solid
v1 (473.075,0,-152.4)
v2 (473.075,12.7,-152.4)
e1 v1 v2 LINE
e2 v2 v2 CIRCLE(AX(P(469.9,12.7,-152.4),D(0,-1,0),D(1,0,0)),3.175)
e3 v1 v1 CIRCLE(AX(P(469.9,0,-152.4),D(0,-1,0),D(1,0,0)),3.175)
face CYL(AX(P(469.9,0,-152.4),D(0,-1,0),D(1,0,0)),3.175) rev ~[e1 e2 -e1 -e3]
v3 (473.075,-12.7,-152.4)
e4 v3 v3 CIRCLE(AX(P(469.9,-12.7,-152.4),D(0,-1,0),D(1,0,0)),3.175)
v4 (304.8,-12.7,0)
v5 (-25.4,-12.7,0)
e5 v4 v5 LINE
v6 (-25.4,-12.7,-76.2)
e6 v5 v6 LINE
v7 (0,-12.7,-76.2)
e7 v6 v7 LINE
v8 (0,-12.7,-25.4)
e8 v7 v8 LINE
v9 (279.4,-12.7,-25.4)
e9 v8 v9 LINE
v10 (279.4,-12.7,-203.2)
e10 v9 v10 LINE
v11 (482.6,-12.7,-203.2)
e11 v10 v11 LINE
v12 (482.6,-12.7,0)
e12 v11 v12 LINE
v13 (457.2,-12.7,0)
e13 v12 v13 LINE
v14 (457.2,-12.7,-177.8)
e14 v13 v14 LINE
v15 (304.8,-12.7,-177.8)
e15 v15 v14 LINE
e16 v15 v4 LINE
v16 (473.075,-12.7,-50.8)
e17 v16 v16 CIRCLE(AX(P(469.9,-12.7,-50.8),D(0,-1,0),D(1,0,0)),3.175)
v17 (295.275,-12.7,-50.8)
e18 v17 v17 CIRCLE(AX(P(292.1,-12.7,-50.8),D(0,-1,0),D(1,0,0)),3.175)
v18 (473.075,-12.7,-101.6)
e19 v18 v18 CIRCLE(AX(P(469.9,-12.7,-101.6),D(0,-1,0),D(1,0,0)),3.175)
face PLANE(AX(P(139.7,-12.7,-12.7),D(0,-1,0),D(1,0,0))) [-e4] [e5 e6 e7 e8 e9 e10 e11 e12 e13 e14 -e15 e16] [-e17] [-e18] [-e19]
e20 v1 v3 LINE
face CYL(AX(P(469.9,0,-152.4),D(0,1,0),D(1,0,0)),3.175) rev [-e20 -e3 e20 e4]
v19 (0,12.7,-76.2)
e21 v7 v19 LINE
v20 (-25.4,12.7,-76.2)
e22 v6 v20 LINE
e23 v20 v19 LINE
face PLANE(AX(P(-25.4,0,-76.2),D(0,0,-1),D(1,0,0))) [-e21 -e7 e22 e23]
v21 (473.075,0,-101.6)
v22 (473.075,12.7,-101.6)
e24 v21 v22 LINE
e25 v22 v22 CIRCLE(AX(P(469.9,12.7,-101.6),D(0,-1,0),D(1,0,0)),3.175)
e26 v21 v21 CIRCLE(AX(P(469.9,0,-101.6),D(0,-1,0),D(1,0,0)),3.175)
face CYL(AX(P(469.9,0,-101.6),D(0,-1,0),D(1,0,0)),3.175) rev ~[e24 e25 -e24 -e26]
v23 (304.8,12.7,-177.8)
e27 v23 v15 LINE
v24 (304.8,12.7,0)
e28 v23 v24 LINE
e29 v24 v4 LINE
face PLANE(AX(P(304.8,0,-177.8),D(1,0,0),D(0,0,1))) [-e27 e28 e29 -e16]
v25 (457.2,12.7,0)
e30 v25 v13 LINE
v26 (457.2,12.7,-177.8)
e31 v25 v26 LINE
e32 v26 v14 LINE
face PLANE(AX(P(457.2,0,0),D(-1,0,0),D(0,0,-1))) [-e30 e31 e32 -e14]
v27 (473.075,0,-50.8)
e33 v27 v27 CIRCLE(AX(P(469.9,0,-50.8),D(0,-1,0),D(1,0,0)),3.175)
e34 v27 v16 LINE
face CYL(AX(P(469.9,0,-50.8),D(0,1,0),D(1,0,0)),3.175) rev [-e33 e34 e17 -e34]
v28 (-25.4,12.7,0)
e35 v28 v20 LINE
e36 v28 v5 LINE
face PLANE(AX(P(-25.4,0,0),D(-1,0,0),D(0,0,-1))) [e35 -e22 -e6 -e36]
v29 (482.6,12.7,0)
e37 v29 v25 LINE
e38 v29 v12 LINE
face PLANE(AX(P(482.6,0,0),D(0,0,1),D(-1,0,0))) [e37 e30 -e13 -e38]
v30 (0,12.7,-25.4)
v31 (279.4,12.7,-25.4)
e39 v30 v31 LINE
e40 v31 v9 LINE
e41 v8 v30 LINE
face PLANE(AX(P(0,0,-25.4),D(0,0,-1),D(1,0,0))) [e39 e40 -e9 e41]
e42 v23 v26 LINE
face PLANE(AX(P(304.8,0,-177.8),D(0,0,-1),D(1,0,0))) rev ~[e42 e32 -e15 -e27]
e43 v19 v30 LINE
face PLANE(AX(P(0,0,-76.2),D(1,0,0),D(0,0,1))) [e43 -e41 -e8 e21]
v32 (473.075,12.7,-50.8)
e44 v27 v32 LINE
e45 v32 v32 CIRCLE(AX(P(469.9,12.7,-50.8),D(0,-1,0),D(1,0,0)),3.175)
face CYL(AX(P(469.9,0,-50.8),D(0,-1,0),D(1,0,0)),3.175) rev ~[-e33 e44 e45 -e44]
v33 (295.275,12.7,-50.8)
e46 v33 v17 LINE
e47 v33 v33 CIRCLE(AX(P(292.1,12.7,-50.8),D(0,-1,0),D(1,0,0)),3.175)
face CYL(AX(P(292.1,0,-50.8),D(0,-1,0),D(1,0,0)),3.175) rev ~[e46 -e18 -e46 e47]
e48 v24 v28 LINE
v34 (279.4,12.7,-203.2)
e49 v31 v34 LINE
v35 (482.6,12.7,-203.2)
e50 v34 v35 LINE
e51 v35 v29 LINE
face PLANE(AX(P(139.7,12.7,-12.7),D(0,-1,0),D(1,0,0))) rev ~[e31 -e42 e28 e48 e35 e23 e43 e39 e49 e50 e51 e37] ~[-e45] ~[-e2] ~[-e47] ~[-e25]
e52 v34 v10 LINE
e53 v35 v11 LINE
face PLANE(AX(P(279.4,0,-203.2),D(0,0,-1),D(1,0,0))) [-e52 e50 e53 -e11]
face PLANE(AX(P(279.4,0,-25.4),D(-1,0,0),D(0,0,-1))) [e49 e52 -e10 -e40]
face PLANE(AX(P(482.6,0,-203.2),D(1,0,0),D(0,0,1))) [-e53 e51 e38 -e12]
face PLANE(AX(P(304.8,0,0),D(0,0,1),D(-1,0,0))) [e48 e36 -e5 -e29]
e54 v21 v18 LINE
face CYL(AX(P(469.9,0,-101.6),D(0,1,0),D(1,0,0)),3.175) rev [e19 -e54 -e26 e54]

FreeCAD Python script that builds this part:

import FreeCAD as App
import Part
import Sketcher
from FreeCAD import Vector
Q = App.Units.Quantity

doc = App.newDocument("Part")
body = doc.addObject("PartDesign::Body", "Body")

# Sketch on XZ plane
sketch1 = body.newObject("Sketcher::SketchObject", "Sketch")
sketch1.AttachmentSupport = (doc.getObject("XZ_Plane"), [""])
sketch1.MapMode = "FlatFace"
sketch1.addGeometry(Part.LineSegment(Vector(0, -25, 0), Vector(279, -25, 0)), False)
sketch1.addGeometry(Part.LineSegment(Vector(279, -25, 0), Vector(279, -203, 0)), False)
sketch1.addGeometry(Part.LineSegment(Vector(279, -203, 0), Vector(483, -203, 0)), False)
sketch1.addGeometry(Part.LineSegment(Vector(483, -203, 0), Vector(483, 0, 0)), False)
sketch1.addGeometry(Part.LineSegment(Vector(483, 0, 0), Vector(457, 0, 0)), False)
sketch1.addGeometry(Part.LineSegment(Vector(457, 0, 0), Vector(457, -178, 0)), False)
sketch1.addGeometry(Part.LineSegment(Vector(457, -178, 0), Vector(305, -178, 0)), False)
sketch1.addGeometry(Part.LineSegment(Vector(305, -178, 0), Vector(305, 0, 0)), False)
sketch1.addGeometry(Part.LineSegment(Vector(305, 0, 0), Vector(-25, 0, 0)), False)
sketch1.addGeometry(Part.LineSegment(Vector(-25, 0, 0), Vector(-25, -76, 0)), False)
sketch1.addGeometry(Part.LineSegment(Vector(-25, -76, 0), Vector(0, -76, 0)), False)
sketch1.addGeometry(Part.LineSegment(Vector(0, -76, 0), Vector(0, -25, 0)), False)
sketch1.addConstraint(Sketcher.Constraint("Coincident", 0, 2, 1, 1))
sketch1.addConstraint(Sketcher.Constraint("Coincident", 1, 2, 2, 1))
sketch1.addConstraint(Sketcher.Constraint("Coincident", 2, 2, 3, 1))
sketch1.addConstraint(Sketcher.Constraint("Coincident", 3, 2, 4, 1))
sketch1.addConstraint(Sketcher.Constraint("Coincident", 4, 2, 5, 1))
sketch1.addConstraint(Sketcher.Constraint("Coincident", 5, 2, 6, 1))
sketch1.addConstraint(Sketcher.Constraint("Coincident", 6, 2, 7, 1))
sketch1.addConstraint(Sketcher.Constraint("Coincident", 7, 2, 8, 1))
sketch1.addConstraint(Sketcher.Constraint("Coincident", 8, 2, 9, 1))
sketch1.addConstraint(Sketcher.Constraint("Coincident", 9, 2, 10, 1))
sketch1.addConstraint(Sketcher.Constraint("Coincident", 10, 2, 11, 1))
sketch1.addConstraint(Sketcher.Constraint("Coincident", 11, 2, 0, 1))
sketch1.addConstraint(Sketcher.Constraint("Horizontal", 0))
sketch1.addConstraint(Sketcher.Constraint("Vertical", 1))
sketch1.addConstraint(Sketcher.Constraint("Horizontal", 2))
sketch1.addConstraint(Sketcher.Constraint("Vertical", 3))
sketch1.addConstraint(Sketcher.Constraint("Horizontal", 4))
sketch1.addConstraint(Sketcher.Constraint("Vertical", 5))
sketch1.addConstraint(Sketcher.Constraint("Horizontal", 6))
sketch1.addConstraint(Sketcher.Constraint("Vertical", 7))
sketch1.addConstraint(Sketcher.Constraint("Horizontal", 8))
sketch1.addConstraint(Sketcher.Constraint("Vertical", 9))
sketch1.addConstraint(Sketcher.Constraint("Horizontal", 10))
sketch1.addConstraint(Sketcher.Constraint("Vertical", 11))
sketch1.addConstraint(Sketcher.Constraint("PointOnObject", 3, 2, -1))
sketch1.addConstraint(Sketcher.Constraint("PointOnObject", 7, 2, -1))
sketch1.addConstraint(Sketcher.Constraint("PointOnObject", 10, 2, -2))
sketch1.addConstraint(Sketcher.Constraint("Equal", 4, 10))
sketch1.addConstraint(Sketcher.Constraint("Equal", 2, 3))
sketch1.addConstraint(Sketcher.Constraint("Equal", 1, 5))
sketch1.addConstraint(Sketcher.Constraint("DistanceX", 0, 1, 0, 2, Q("11 in")))
sketch1.addConstraint(Sketcher.Constraint("DistanceX", 2, 1, 2, 2, Q("8 in")))
sketch1.addConstraint(Sketcher.Constraint("DistanceX", 4, 2, 4, 1, Q("1 in")))
sketch1.addConstraint(Sketcher.Constraint("DistanceX", 6, 2, 6, 1, Q("6 in")))
sketch1.addConstraint(Sketcher.Constraint("DistanceY", 1, 2, 1, 1, Q("7 in")))
sketch1.addConstraint(Sketcher.Constraint("DistanceY", 9, 2, 9, 1, Q("3 in")))
pad1 = body.newObject("PartDesign::Pad", "Pad")
pad1.Profile = sketch1
pad1.Length = Q("1 in")
pad1.Midplane = True

# Sketch on XZ plane
sketch2 = body.newObject("Sketcher::SketchObject", "Sketch001")
sketch2.AttachmentSupport = (doc.getObject("XZ_Plane"), [""])
sketch2.MapMode = "FlatFace"
sketch2.addGeometry(Part.Circle(Vector(469.9, -101.6, 0), Vector(0, 0, 1), 3.2), False)
sketch2.addGeometry(Part.Circle(Vector(469.9, -50.8, 0), Vector(0, 0, 1), 3.2), False)
sketch2.addGeometry(Part.Circle(Vector(469.9, -152.4, 0), Vector(0, 0, 1), 3.2), False)
sketch2.addGeometry(Part.Circle(Vector(292.1, -50.8, 0), Vector(0, 0, 1), 3.2), False)
sketch2.addConstraint(Sketcher.Constraint("Equal", 0, 1))
sketch2.addConstraint(Sketcher.Constraint("Equal", 1, 2))
sketch2.addConstraint(Sketcher.Constraint("Equal", 2, 3))
sketch2.addConstraint(Sketcher.Constraint("Horizontal", 1, 3, 3, 3))
sketch2.addConstraint(Sketcher.Constraint("Vertical", 0, 3, 1, 3))
sketch2.addConstraint(Sketcher.Constraint("Vertical", 1, 3, 2, 3))
sketch2.addConstraint(Sketcher.Constraint("Diameter", 0, Q("0.25 in")))
sketch2.addConstraint(Sketcher.Constraint("DistanceY", 0, 3, -1, 1, Q("4 in")))
sketch2.addConstraint(Sketcher.Constraint("DistanceY", 1, 3, -1, 1, Q("2 in")))
sketch2.addConstraint(Sketcher.Constraint("DistanceY", 2, 3, -1, 1, Q("6 in")))
sketch2.addConstraint(Sketcher.Constraint("DistanceX", 3, 3, 1, 3, Q("7 in")))
sketch2.addConstraint(Sketcher.Constraint("DistanceX", -1, 1, 0, 3, Q("18.5 in")))
pocket1 = body.newObject("PartDesign::Pocket", "Pocket")
pocket1.Profile = sketch2
pocket1.Length = Q("1 in")
pocket1.Midplane = True

doc.recompute()
